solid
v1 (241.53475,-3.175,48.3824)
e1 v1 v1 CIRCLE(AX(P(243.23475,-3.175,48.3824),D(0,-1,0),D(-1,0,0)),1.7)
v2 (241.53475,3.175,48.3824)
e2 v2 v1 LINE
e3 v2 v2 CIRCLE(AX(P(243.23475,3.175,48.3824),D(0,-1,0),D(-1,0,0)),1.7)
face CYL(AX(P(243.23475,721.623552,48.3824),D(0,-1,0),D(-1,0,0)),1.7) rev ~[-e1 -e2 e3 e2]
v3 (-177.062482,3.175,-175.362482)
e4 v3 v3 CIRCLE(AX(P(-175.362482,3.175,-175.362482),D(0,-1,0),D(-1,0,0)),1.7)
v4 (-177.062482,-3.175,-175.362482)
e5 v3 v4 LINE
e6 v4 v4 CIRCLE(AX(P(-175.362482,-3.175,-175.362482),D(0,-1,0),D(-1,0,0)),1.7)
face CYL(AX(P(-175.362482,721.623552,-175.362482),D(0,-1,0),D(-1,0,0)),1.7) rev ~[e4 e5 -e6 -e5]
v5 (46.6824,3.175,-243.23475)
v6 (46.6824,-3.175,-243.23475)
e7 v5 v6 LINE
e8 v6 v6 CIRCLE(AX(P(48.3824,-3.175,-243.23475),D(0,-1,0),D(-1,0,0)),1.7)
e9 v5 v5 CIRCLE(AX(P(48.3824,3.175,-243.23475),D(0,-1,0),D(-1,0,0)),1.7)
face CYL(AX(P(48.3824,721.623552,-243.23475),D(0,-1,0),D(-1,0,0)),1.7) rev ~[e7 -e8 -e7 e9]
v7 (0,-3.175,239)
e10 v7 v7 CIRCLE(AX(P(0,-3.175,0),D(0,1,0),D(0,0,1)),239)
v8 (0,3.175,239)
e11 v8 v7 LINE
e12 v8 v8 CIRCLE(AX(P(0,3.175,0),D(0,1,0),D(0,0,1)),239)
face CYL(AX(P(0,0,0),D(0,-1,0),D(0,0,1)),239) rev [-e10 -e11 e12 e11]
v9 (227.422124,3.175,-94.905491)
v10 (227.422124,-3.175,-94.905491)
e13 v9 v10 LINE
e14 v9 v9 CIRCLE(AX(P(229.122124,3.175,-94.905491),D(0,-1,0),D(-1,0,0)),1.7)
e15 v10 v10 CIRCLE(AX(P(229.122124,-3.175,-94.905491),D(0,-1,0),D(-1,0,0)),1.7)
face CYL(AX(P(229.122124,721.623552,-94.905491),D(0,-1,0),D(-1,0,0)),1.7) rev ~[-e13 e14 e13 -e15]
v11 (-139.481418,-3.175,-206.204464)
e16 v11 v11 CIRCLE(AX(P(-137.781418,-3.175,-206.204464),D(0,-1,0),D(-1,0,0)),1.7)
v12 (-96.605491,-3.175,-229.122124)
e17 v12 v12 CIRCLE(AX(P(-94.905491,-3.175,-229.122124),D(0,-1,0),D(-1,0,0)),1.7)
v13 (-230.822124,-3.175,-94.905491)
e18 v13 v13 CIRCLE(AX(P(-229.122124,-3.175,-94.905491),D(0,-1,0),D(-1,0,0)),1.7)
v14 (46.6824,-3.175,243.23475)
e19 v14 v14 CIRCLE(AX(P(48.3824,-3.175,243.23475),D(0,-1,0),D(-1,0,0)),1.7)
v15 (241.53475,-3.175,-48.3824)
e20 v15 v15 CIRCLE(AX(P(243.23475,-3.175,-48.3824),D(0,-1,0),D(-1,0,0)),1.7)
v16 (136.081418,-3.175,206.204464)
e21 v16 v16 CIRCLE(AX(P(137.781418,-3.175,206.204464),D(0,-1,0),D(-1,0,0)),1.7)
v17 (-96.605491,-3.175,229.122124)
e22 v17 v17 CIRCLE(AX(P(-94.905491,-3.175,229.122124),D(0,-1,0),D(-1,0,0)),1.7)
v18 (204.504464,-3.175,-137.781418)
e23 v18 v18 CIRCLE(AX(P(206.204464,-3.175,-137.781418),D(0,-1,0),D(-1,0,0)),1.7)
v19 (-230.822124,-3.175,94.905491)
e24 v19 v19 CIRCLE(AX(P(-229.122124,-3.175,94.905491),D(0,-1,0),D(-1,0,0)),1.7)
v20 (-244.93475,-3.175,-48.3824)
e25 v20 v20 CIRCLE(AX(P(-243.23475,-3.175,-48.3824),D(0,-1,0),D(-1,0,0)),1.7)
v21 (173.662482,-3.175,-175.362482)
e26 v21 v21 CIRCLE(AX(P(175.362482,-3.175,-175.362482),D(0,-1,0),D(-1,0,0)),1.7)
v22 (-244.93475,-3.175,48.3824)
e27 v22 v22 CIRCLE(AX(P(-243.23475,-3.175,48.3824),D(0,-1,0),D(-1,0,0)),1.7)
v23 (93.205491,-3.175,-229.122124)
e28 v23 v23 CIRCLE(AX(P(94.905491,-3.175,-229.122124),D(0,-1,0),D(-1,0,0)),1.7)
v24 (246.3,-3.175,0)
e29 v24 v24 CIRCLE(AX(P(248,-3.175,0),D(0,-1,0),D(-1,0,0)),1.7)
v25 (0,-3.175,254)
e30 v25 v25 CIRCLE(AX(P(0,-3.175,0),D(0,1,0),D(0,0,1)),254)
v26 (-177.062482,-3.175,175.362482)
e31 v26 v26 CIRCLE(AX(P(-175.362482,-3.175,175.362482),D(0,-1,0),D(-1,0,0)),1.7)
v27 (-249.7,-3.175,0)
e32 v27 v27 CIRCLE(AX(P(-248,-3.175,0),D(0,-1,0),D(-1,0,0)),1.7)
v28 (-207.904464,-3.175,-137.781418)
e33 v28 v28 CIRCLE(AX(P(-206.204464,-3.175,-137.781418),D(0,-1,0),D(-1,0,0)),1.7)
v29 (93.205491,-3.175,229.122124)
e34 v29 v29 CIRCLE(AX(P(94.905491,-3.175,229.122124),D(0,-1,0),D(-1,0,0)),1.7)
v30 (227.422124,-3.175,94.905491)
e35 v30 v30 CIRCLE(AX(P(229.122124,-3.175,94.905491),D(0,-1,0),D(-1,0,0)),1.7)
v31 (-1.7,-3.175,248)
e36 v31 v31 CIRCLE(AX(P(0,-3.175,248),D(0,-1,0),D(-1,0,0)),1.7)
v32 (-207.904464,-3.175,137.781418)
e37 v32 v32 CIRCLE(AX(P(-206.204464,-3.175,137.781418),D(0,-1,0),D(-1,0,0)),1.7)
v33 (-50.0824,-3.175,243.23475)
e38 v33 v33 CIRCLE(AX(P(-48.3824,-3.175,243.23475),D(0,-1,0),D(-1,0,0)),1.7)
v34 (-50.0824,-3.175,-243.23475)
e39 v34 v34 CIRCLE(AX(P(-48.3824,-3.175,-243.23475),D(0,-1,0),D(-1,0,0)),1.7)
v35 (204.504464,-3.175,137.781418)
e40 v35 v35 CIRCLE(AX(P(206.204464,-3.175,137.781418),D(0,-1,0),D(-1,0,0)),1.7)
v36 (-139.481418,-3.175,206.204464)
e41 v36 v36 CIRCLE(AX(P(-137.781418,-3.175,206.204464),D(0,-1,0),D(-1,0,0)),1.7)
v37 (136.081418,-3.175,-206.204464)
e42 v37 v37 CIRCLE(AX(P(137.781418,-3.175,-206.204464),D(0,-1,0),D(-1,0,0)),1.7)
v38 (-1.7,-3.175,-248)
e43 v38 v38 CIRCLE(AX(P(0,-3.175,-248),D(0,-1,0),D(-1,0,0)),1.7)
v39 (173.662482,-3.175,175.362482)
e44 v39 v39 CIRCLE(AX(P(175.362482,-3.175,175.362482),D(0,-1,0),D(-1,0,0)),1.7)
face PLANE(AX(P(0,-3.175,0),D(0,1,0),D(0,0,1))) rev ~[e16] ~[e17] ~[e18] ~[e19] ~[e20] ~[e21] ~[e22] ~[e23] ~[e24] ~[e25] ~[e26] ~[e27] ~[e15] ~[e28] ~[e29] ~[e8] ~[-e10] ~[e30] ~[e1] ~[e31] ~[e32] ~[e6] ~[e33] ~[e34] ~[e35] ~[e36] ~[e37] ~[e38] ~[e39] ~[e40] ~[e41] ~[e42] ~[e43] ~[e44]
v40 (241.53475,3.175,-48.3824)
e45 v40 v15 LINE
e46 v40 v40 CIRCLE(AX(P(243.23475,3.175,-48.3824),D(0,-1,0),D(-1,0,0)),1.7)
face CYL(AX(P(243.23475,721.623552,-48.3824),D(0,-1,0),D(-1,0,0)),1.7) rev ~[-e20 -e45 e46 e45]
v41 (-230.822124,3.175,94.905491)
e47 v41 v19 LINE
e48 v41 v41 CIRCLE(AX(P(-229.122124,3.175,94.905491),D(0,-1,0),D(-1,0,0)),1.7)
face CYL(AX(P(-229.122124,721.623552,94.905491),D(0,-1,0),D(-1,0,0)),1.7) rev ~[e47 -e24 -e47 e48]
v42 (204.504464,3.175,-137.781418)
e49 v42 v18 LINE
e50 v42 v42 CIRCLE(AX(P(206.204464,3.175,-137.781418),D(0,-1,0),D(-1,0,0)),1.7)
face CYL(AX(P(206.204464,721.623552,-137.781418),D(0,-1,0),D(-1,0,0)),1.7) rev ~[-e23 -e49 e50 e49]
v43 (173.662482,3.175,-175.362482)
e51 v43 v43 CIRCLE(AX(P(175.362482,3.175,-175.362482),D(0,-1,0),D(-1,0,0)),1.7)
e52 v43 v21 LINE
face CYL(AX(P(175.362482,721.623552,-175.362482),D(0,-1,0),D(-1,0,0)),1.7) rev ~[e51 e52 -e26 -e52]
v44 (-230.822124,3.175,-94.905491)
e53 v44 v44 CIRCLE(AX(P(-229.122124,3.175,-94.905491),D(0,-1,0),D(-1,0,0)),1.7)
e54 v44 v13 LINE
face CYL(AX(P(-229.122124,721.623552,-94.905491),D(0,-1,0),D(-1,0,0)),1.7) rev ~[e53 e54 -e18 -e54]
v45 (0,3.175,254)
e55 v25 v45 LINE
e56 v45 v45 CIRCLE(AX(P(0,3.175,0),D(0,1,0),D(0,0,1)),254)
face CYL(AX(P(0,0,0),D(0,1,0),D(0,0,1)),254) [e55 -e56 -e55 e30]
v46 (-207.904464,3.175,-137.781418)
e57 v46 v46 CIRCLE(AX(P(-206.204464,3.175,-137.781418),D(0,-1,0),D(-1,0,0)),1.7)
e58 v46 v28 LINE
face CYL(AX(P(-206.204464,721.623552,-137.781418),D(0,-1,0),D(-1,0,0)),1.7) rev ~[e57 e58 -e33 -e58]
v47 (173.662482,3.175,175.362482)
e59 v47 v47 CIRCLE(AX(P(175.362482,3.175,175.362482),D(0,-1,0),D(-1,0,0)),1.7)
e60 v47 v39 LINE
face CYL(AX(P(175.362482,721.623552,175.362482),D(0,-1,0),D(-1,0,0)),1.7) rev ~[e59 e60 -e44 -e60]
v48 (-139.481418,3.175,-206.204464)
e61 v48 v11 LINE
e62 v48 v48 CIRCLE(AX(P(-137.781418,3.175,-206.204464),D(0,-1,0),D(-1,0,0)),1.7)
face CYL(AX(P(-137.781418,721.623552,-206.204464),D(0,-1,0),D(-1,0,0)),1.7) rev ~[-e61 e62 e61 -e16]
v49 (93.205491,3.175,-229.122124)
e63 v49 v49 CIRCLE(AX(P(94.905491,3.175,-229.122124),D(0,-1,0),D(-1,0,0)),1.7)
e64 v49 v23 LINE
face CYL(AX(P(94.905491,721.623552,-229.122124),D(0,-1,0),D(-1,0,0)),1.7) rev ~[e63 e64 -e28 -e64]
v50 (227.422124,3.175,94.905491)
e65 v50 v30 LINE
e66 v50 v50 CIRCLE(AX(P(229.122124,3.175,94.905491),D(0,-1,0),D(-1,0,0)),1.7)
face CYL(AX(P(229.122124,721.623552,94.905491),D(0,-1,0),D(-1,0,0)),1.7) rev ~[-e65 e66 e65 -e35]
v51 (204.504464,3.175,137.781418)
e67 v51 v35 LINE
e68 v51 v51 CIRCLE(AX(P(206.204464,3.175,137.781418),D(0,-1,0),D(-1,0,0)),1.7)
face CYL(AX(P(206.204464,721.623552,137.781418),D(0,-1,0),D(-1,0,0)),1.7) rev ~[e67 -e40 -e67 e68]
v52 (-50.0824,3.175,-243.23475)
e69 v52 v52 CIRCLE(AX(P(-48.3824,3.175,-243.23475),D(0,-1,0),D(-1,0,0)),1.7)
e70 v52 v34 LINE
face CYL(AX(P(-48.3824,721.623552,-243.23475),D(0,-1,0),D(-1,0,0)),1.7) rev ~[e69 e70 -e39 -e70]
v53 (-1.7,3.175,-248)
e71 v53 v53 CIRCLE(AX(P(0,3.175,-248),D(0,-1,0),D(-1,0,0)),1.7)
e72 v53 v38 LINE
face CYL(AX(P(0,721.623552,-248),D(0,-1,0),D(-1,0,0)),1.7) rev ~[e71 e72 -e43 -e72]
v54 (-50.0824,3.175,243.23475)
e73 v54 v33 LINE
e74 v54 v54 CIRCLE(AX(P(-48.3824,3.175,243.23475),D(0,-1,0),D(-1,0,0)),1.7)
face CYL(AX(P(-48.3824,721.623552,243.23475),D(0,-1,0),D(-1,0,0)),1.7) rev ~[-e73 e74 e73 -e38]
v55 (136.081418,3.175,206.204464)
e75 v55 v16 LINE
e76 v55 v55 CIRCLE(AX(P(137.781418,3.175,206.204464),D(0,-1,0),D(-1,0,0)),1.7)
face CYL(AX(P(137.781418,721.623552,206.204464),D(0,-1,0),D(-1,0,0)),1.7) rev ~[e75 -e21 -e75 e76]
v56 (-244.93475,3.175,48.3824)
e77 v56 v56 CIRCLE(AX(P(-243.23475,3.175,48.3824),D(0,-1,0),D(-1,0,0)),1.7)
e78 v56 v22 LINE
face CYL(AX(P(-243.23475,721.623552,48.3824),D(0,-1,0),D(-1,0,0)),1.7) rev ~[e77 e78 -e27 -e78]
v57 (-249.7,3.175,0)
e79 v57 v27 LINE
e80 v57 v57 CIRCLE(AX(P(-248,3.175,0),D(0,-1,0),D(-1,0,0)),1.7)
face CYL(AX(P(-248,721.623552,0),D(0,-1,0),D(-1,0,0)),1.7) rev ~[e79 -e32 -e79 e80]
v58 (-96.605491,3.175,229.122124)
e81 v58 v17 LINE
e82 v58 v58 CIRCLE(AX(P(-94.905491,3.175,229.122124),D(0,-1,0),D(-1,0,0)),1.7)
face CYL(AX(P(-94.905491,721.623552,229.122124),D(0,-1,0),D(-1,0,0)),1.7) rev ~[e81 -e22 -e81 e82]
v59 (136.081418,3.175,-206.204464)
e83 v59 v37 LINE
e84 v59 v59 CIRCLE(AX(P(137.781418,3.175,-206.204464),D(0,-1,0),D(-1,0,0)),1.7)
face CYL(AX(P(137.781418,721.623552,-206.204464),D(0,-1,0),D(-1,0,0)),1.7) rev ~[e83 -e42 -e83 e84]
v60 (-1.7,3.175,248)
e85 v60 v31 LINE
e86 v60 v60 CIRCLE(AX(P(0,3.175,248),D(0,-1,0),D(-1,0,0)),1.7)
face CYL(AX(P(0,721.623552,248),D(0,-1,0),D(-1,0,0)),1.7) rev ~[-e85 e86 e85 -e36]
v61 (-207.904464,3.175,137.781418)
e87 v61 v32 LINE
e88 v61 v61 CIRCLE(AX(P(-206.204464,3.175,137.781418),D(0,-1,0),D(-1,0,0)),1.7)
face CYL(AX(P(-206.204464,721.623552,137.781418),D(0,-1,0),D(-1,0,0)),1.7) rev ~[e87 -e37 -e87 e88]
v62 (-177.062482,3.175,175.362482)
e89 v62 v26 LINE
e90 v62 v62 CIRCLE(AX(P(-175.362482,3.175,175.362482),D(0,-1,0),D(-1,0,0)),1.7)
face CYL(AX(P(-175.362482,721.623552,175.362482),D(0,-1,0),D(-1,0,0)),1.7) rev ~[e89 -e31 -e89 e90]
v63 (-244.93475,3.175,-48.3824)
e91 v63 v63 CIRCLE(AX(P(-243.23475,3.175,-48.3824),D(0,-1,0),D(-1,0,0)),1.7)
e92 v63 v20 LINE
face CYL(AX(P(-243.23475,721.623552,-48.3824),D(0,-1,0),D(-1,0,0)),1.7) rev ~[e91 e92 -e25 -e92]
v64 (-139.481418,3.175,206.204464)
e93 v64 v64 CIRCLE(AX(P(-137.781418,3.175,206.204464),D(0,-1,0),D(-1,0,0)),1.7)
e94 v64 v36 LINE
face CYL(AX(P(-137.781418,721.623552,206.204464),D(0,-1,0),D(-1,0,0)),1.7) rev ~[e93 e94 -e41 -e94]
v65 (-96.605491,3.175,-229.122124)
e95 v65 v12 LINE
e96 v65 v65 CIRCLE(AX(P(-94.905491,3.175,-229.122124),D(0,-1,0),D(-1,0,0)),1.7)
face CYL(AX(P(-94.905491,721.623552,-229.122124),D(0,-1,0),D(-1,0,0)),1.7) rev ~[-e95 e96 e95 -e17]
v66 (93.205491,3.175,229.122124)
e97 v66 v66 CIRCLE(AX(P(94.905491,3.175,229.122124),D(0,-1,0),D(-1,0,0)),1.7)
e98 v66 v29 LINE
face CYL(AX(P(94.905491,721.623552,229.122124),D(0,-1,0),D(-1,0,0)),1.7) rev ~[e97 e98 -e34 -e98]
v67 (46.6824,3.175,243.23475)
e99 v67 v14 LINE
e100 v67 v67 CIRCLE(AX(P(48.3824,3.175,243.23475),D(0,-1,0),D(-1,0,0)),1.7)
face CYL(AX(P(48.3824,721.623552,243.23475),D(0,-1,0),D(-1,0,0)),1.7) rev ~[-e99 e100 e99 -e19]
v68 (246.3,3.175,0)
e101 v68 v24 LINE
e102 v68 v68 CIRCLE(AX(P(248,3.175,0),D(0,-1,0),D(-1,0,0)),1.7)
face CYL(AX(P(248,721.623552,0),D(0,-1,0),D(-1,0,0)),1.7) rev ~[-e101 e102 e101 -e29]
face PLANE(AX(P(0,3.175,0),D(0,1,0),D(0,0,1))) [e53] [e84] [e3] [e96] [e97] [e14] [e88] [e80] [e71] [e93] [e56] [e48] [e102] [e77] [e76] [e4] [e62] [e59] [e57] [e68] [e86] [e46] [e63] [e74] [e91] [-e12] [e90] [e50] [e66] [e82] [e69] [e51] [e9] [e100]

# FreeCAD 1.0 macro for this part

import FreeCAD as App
import Part
import Sketcher
Q = App.Units.Quantity

doc = App.newDocument("Part")
body = doc.addObject("PartDesign::Body", "Body")

# Sketch on XZ plane
sketch1 = body.newObject("Sketcher::SketchObject", "Sketch")
sketch1.AttachmentSupport = (doc.getObject("XZ_Plane"), [""])
sketch1.MapMode = "FlatFace"
sketch1.addGeometry([
    Part.Circle(App.Vector(0, 0, 0), App.Vector(0, 0, 1), 254),
    Part.Circle(App.Vector(0, 0, 0), App.Vector(0, 0, 1), 239),
], False)
sketch1.addConstraint([
    Sketcher.Constraint("Coincident", 0, 3, -1, 1),
    Sketcher.Constraint("Coincident", 1, 3, -1, 1),
    Sketcher.Constraint("Diameter", 0, Q("508 mm")),
    Sketcher.Constraint("Diameter", 1, Q("478 mm")),
])
pad1 = body.newObject("PartDesign::Pad", "Pad")
pad1.Profile = sketch1
pad1.Length = 6.35
pad1.Midplane = True

# Sketch on XZ plane
sketch2 = body.newObject("Sketcher::SketchObject", "Sketch001")
sketch2.AttachmentSupport = (doc.getObject("XZ_Plane"), [""])
sketch2.MapMode = "FlatFace"
sketch2.AttachmentOffset = App.Placement(App.Vector(0, 0, -3.175), App.Rotation())
sketch2.addGeometry([
    Part.Circle(App.Vector(248, 0, 0), App.Vector(0, 0, 1), 1.7),  # 0
    Part.Circle(App.Vector(243.2, 48.4, 0), App.Vector(0, 0, 1), 1.7),  # 1
    Part.Circle(App.Vector(229.1, 94.9, 0), App.Vector(0, 0, 1), 1.7),  # 2
    Part.Circle(App.Vector(206.2, 137.8, 0), App.Vector(0, 0, 1), 1.7),  # 3
    Part.Circle(App.Vector(175.4, 175.4, 0), App.Vector(0, 0, 1), 1.7),  # 4
    Part.Circle(App.Vector(137.8, 206.2, 0), App.Vector(0, 0, 1), 1.7),  # 5
    Part.Circle(App.Vector(94.9, 229.1, 0), App.Vector(0, 0, 1), 1.7),  # 6
    Part.Circle(App.Vector(48.4, 243.2, 0), App.Vector(0, 0, 1), 1.7),  # 7
    Part.Circle(App.Vector(0, 248, 0), App.Vector(0, 0, 1), 1.7),  # 8
    Part.Circle(App.Vector(-48.4, 243.2, 0), App.Vector(0, 0, 1), 1.7),  # 9
    Part.Circle(App.Vector(-94.9, 229.1, 0), App.Vector(0, 0, 1), 1.7),  # 10
    Part.Circle(App.Vector(-137.8, 206.2, 0), App.Vector(0, 0, 1), 1.7),  # 11
    Part.Circle(App.Vector(-175.4, 175.4, 0), App.Vector(0, 0, 1), 1.7),  # 12
    Part.Circle(App.Vector(-206.2, 137.8, 0), App.Vector(0, 0, 1), 1.7),  # 13
    Part.Circle(App.Vector(-229.1, 94.9, 0), App.Vector(0, 0, 1), 1.7),  # 14
    Part.Circle(App.Vector(-243.2, 48.4, 0), App.Vector(0, 0, 1), 1.7),  # 15
    Part.Circle(App.Vector(-248, 0, 0), App.Vector(0, 0, 1), 1.7),  # 16
    Part.Circle(App.Vector(-243.2, -48.4, 0), App.Vector(0, 0, 1), 1.7),  # 17
    Part.Circle(App.Vector(-229.1, -94.9, 0), App.Vector(0, 0, 1), 1.7),  # 18
    Part.Circle(App.Vector(-206.2, -137.8, 0), App.Vector(0, 0, 1), 1.7),  # 19
    Part.Circle(App.Vector(-175.4, -175.4, 0), App.Vector(0, 0, 1), 1.7),  # 20
    Part.Circle(App.Vector(-137.8, -206.2, 0), App.Vector(0, 0, 1), 1.7),  # 21
    Part.Circle(App.Vector(-94.9, -229.1, 0), App.Vector(0, 0, 1), 1.7),  # 22
    Part.Circle(App.Vector(-48.4, -243.2, 0), App.Vector(0, 0, 1), 1.7),  # 23
    Part.Circle(App.Vector(0, -248, 0), App.Vector(0, 0, 1), 1.7),  # 24
    Part.Circle(App.Vector(48.4, -243.2, 0), App.Vector(0, 0, 1), 1.7),  # 25
    Part.Circle(App.Vector(94.9, -229.1, 0), App.Vector(0, 0, 1), 1.7),  # 26
    Part.Circle(App.Vector(137.8, -206.2, 0), App.Vector(0, 0, 1), 1.7),  # 27
    Part.Circle(App.Vector(175.4, -175.4, 0), App.Vector(0, 0, 1), 1.7),  # 28
    Part.Circle(App.Vector(206.2, -137.8, 0), App.Vector(0, 0, 1), 1.7),  # 29
    Part.Circle(App.Vector(229.1, -94.9, 0), App.Vector(0, 0, 1), 1.7),  # 30
    Part.Circle(App.Vector(243.2, -48.4, 0), App.Vector(0, 0, 1), 1.7),  # 31
], False)
sketch2.addConstraint([
    Sketcher.Constraint("Equal", 0, 1),
    Sketcher.Constraint("Equal", 1, 2),
    Sketcher.Constraint("Equal", 2, 3),
    Sketcher.Constraint("Equal", 3, 4),
    Sketcher.Constraint("Equal", 4, 5),
    Sketcher.Constraint("Equal", 5, 6),
    Sketcher.Constraint("Equal", 6, 7),
    Sketcher.Constraint("Equal", 7, 8),
    Sketcher.Constraint("Equal", 8, 9),
    Sketcher.Constraint("Equal", 9, 10),
    Sketcher.Constraint("Equal", 10, 11),
    Sketcher.Constraint("Equal", 11, 12),
    Sketcher.Constraint("Equal", 12, 13),
    Sketcher.Constraint("Equal", 13, 14),
    Sketcher.Constraint("Equal", 14, 15),
    Sketcher.Constraint("Equal", 15, 16),
    Sketcher.Constraint("Equal", 16, 17),
    Sketcher.Constraint("Equal", 17, 18),
    Sketcher.Constraint("Equal", 18, 19),
    Sketcher.Constraint("Equal", 19, 20),
    Sketcher.Constraint("Equal", 20, 21),
    Sketcher.Constraint("Equal", 21, 22),
    Sketcher.Constraint("Equal", 22, 23),
    Sketcher.Constraint("Equal", 23, 24),
    Sketcher.Constraint("Equal", 24, 25),
    Sketcher.Constraint("Equal", 25, 26),
    Sketcher.Constraint("Equal", 26, 27),
    Sketcher.Constraint("Equal", 27, 28),
    Sketcher.Constraint("Equal", 28, 29),
    Sketcher.Constraint("Equal", 29, 30),
    Sketcher.Constraint("Equal", 30, 31),
    Sketcher.Constraint("Symmetric", 0, 3, 16, 3, -1, 1),
    Sketcher.Constraint("Symmetric", 1, 3, 17, 3, -1, 1),
    Sketcher.Constraint("Symmetric", 2, 3, 18, 3, -1, 1),
    Sketcher.Constraint("Symmetric", 3, 3, 19, 3, -1, 1),
    Sketcher.Constraint("Symmetric", 4, 3, 20, 3, -1, 1),
    Sketcher.Constraint("Symmetric", 5, 3, 21, 3, -1, 1),
    Sketcher.Constraint("Symmetric", 6, 3, 22, 3, -1, 1),
    Sketcher.Constraint("Symmetric", 7, 3, 23, 3, -1, 1),
    Sketcher.Constraint("Symmetric", 8, 3, 24, 3, -1, 1),
    Sketcher.Constraint("Symmetric", 9, 3, 25, 3, -1, 1),
    Sketcher.Constraint("Symmetric", 10, 3, 26, 3, -1, 1),
    Sketcher.Constraint("Symmetric", 11, 3, 27, 3, -1, 1),
    Sketcher.Constraint("Symmetric", 12, 3, 28, 3, -1, 1),
    Sketcher.Constraint("Symmetric", 13, 3, 29, 3, -1, 1),
    Sketcher.Constraint("Symmetric", 14, 3, 30, 3, -1, 1),
    Sketcher.Constraint("Symmetric", 15, 3, 31, 3, -1, 1),
    Sketcher.Constraint("Symmetric", 7, 3, 9, 3, -2),
    Sketcher.Constraint("Symmetric", 6, 3, 10, 3, -2),
    Sketcher.Constraint("Symmetric", 5, 3, 11, 3, -2),
    Sketcher.Constraint("Symmetric", 4, 3, 12, 3, -2),
    Sketcher.Constraint("Symmetric", 3, 3, 13, 3, -2),
    Sketcher.Constraint("Symmetric", 2, 3, 14, 3, -2),
    Sketcher.Constraint("Symmetric", 1, 3, 15, 3, -2),
    Sketcher.Constraint("PointOnObject", 0, 3, -1),
    Sketcher.Constraint("PointOnObject", 8, 3, -2),
    Sketcher.Constraint("Diameter", 0, Q("3.4 mm")),
    Sketcher.Constraint("DistanceX", -1, 1, 0, 3, Q("248 mm")),
    Sketcher.Constraint("DistanceY", -1, 1, 8, 3, Q("248 mm")),
    Sketcher.Constraint("DistanceY", -1, 1, 1, 3, Q("48.3824 mm")),
    Sketcher.Constraint("DistanceX", -1, 1, 7, 3, Q("48.3824 mm")),
    Sketcher.Constraint("DistanceX", -1, 1, 1, 3, Q("243.23475 mm")),
    Sketcher.Constraint("DistanceY", -1, 1, 2, 3, Q("94.905491 mm")),
    Sketcher.Constraint("DistanceX", -1, 1, 4, 3, Q("175.362482 mm")),
    Sketcher.Constraint("DistanceY", -1, 1, 4, 3, Q("175.362482 mm")),
    Sketcher.Constraint("DistanceX", -1, 1, 6, 3, Q("94.905491 mm")),
    Sketcher.Constraint("DistanceY", -1, 1, 7, 3, Q("243.23475 mm")),
    Sketcher.Constraint("DistanceX", 3, 3, 2, 3, Q("22.91766 mm")),
    Sketcher.Constraint("DistanceX", 5, 3, 1, 3, Q("105.453332 mm")),
    Sketcher.Constraint("DistanceY", 5, 3, 6, 3, Q("22.91766 mm")),
    Sketcher.Constraint("DistanceY", 3, 3, 7, 3, Q("105.453332 mm")),
    Sketcher.Constraint("DistanceX", -1, 1, 2, 3, Q("229.122124 mm")),
    Sketcher.Constraint("DistanceY", -1, 1, 5, 3, Q("206.204464 mm")),
])
doc.recompute()
hole = body.newObject("PartDesign::Hole", "Hole")
hole.Profile = sketch2
hole.ThreadType = "None"
hole.Diameter = 3.4
hole.DepthType = "ThroughAll"
hole.Reversed = True

doc.recompute()
